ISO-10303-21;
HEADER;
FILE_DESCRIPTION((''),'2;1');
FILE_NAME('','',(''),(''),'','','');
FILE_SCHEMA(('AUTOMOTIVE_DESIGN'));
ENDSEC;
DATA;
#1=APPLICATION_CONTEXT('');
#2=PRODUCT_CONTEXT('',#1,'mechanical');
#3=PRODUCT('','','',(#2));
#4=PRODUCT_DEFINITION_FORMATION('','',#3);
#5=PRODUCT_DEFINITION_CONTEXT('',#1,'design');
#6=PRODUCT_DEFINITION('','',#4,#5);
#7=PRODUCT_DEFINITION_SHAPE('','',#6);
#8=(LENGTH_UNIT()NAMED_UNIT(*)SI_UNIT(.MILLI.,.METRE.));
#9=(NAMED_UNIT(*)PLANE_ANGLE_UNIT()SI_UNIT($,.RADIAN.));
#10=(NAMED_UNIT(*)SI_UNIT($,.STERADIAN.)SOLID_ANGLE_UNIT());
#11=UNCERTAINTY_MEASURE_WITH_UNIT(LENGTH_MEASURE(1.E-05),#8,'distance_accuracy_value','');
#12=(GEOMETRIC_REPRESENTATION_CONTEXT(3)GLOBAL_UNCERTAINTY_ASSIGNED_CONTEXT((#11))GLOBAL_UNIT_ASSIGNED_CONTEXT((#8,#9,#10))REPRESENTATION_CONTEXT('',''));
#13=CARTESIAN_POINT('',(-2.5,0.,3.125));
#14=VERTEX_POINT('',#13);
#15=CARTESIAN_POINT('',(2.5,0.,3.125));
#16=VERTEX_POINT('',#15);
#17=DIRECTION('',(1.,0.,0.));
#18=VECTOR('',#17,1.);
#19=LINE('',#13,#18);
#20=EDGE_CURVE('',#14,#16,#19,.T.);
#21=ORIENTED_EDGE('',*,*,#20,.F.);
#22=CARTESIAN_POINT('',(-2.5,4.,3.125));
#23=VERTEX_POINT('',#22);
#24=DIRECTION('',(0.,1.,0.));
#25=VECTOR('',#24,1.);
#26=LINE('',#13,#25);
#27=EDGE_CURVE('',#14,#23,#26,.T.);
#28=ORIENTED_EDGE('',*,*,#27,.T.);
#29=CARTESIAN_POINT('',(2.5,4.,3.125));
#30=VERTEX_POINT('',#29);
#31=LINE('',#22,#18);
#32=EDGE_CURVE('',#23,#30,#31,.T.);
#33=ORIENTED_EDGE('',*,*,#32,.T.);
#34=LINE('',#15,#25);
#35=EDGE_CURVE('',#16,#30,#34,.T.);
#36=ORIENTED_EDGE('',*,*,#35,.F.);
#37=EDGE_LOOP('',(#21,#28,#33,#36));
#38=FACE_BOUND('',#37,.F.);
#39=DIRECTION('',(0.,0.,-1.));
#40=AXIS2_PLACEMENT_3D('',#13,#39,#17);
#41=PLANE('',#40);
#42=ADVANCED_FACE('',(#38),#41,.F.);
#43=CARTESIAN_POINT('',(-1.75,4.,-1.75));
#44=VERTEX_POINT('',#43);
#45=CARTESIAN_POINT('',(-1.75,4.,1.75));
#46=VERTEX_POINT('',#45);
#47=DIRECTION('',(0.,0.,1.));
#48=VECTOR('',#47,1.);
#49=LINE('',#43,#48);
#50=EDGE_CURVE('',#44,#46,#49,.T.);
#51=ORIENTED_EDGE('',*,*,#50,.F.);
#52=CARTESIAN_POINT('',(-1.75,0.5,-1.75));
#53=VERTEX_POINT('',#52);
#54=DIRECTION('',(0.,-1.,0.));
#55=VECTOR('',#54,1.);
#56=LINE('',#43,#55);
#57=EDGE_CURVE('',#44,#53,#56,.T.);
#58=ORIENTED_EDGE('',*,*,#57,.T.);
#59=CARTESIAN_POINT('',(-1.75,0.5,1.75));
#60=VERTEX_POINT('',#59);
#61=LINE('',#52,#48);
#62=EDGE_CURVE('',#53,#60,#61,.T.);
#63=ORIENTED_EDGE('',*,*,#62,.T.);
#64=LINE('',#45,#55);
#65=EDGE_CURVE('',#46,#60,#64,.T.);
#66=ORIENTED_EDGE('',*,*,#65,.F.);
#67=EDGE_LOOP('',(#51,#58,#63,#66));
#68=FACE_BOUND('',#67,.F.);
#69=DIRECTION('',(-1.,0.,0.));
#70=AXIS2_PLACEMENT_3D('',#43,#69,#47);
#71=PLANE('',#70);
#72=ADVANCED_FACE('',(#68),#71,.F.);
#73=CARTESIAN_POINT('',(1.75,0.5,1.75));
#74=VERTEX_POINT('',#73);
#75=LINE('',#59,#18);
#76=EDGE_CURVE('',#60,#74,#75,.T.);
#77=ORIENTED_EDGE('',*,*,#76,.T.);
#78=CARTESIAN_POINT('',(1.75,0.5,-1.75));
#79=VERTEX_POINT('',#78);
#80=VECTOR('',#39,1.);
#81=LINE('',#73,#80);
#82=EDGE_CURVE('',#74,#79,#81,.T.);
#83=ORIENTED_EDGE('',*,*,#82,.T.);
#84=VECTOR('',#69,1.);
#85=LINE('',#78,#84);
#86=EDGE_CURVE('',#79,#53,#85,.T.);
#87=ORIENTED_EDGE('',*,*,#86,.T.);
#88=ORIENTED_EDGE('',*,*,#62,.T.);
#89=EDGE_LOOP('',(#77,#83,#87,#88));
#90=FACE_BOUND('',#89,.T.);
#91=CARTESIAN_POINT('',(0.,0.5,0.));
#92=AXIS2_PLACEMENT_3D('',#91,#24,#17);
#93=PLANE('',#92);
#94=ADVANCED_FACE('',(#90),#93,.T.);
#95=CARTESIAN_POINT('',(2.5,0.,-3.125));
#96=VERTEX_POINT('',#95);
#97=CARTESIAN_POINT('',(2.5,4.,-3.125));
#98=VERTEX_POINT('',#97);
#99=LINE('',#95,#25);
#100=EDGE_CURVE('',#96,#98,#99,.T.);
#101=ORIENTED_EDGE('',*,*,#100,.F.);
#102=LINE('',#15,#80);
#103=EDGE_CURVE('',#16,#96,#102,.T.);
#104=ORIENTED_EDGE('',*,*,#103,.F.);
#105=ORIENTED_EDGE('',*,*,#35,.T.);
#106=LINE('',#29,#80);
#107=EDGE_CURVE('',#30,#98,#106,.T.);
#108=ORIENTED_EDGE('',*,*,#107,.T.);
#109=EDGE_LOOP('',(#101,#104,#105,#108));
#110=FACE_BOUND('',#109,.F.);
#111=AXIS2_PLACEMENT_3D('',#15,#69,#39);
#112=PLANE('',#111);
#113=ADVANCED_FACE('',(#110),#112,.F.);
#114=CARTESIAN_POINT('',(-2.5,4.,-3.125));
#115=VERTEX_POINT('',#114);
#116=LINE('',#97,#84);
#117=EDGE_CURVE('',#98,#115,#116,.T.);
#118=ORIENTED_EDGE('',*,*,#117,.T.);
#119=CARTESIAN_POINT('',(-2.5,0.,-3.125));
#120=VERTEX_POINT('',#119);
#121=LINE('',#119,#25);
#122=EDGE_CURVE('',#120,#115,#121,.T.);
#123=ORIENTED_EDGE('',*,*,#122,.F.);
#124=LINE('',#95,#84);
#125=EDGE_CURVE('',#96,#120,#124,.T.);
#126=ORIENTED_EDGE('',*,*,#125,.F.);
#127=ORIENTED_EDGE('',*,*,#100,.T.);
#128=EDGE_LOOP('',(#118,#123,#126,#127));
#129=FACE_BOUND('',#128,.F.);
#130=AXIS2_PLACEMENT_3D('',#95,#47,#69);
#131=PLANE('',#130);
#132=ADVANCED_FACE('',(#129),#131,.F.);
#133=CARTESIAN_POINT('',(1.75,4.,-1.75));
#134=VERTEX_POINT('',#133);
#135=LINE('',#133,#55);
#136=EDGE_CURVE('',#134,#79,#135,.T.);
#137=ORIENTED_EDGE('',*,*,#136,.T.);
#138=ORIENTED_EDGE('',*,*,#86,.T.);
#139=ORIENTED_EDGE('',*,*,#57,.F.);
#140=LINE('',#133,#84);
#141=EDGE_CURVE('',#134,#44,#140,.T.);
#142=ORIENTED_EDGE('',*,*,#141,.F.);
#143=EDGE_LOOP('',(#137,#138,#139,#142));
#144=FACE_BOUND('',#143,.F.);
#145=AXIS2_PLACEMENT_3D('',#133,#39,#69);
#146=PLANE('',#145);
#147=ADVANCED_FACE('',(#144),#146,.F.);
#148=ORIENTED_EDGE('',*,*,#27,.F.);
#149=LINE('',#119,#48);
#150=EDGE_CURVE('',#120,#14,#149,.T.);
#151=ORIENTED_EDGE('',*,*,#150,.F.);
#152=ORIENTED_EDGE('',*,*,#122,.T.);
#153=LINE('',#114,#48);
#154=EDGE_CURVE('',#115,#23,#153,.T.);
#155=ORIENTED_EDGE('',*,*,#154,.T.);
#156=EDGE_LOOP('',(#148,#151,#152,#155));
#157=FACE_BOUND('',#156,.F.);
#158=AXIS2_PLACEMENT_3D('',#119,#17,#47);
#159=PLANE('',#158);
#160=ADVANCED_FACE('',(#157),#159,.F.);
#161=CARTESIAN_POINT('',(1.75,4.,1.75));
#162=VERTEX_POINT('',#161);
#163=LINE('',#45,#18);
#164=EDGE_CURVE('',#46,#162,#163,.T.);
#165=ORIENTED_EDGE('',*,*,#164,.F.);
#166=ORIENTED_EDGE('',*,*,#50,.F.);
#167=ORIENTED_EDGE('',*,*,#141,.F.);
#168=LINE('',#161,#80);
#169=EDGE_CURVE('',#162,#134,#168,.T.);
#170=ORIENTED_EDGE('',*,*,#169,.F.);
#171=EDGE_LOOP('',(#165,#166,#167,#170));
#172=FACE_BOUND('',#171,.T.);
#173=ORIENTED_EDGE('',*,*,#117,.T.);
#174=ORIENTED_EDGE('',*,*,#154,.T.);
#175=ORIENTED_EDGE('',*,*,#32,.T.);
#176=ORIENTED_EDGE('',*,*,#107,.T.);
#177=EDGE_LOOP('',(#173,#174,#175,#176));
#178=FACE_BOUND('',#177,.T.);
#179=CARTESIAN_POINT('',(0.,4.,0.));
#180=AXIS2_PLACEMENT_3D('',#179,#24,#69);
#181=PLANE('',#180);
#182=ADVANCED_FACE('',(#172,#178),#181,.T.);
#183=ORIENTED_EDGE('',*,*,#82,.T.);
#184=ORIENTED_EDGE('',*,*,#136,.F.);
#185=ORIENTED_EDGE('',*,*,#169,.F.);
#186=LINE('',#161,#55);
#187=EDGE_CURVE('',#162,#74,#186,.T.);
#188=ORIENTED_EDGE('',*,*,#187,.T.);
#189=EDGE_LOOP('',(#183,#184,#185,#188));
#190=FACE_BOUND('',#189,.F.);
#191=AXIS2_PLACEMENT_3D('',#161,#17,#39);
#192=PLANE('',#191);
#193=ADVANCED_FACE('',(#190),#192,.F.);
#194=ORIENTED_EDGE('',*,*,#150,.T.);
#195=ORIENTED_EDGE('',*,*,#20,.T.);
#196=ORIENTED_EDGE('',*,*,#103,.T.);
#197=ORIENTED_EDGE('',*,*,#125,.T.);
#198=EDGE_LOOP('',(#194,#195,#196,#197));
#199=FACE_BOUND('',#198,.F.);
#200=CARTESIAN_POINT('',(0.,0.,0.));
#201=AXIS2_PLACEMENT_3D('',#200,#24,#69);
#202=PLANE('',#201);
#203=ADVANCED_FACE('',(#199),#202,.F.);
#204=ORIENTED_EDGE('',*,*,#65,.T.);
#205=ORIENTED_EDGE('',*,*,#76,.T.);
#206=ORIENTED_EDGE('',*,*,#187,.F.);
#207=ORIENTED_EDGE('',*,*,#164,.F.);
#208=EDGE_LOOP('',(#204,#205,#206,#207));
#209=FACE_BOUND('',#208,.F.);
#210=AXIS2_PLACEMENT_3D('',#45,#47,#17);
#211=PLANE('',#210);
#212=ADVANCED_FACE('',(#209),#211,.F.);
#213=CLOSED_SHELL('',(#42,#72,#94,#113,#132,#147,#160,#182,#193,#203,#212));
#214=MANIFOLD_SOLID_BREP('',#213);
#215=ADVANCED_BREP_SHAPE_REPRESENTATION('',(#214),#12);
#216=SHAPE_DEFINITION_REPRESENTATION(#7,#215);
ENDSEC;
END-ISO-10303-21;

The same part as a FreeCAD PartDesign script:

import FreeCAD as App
import Part
import Sketcher
from FreeCAD import Vector

doc = App.newDocument("Part")
body = doc.addObject("PartDesign::Body", "Body")

# Sketch on XZ plane
sketch1 = body.newObject("Sketcher::SketchObject", "Sketch")
sketch1.AttachmentSupport = (doc.getObject("XZ_Plane"), [""])
sketch1.MapMode = "FlatFace"
sketch1.addGeometry([
    Part.LineSegment(Vector(-2, -3, 0), Vector(-2, 3, 0)),
    Part.LineSegment(Vector(-2, 3, 0), Vector(2, 3, 0)),
    Part.LineSegment(Vector(2, 3, 0), Vector(2, -3, 0)),
    Part.LineSegment(Vector(2, -3, 0), Vector(-2, -3, 0)),
], False)
sketch1.addConstraint([
    Sketcher.Constraint("Coincident", 0, 2, 1, 1),
    Sketcher.Constraint("Coincident", 1, 2, 2, 1),
    Sketcher.Constraint("Coincident", 2, 2, 3, 1),
    Sketcher.Constraint("Coincident", 3, 2, 0, 1),
    Sketcher.Constraint("Vertical", 0),
    Sketcher.Constraint("Horizontal", 1),
    Sketcher.Constraint("Vertical", 2),
    Sketcher.Constraint("Horizontal", 3),
    Sketcher.Constraint("Symmetric", 0, 2, 2, 2, -1, 1),
    Sketcher.Constraint("DistanceX", 1, 1, 1, 2, 5.0),
    Sketcher.Constraint("DistanceY", 0, 1, 0, 2, 6.25),
])
pad1 = body.newObject("PartDesign::Pad", "Pad")
pad1.Profile = sketch1
pad1.Length = 4
pad1.Reversed = True

# Sketch on XZ plane
sketch2 = body.newObject("Sketcher::SketchObject", "Sketch001")
sketch2.AttachmentSupport = (doc.getObject("XZ_Plane"), [""])
sketch2.MapMode = "FlatFace"
sketch2.AttachmentOffset = App.Placement(Vector(0, 0, -4), App.Rotation())
sketch2.addGeometry([
    Part.LineSegment(Vector(-1.8, -1.8, 0), Vector(-1.8, 1.8, 0)),
    Part.LineSegment(Vector(-1.8, 1.8, 0), Vector(1.8, 1.8, 0)),
    Part.LineSegment(Vector(1.8, 1.8, 0), Vector(1.8, -1.8, 0)),
    Part.LineSegment(Vector(1.8, -1.8, 0), Vector(-1.8, -1.8, 0)),
], False)
sketch2.addConstraint([
    Sketcher.Constraint("Coincident", 0, 2, 1, 1),
    Sketcher.Constraint("Coincident", 1, 2, 2, 1),
    Sketcher.Constraint("Coincident", 2, 2, 3, 1),
    Sketcher.Constraint("Coincident", 3, 2, 0, 1),
    Sketcher.Constraint("Vertical", 0),
    Sketcher.Constraint("Horizontal", 1),
    Sketcher.Constraint("Vertical", 2),
    Sketcher.Constraint("Horizontal", 3),
    Sketcher.Constraint("Symmetric", 0, 2, 2, 2, -1, 1),
    Sketcher.Constraint("Equal", 3, 0),
    Sketcher.Constraint("DistanceX", 1, 1, 1, 2, 3.5),
])
pocket1 = body.newObject("PartDesign::Pocket", "Pocket")
pocket1.Profile = sketch2
pocket1.Length = 3.5
pocket1.Reversed = True

doc.recompute()
